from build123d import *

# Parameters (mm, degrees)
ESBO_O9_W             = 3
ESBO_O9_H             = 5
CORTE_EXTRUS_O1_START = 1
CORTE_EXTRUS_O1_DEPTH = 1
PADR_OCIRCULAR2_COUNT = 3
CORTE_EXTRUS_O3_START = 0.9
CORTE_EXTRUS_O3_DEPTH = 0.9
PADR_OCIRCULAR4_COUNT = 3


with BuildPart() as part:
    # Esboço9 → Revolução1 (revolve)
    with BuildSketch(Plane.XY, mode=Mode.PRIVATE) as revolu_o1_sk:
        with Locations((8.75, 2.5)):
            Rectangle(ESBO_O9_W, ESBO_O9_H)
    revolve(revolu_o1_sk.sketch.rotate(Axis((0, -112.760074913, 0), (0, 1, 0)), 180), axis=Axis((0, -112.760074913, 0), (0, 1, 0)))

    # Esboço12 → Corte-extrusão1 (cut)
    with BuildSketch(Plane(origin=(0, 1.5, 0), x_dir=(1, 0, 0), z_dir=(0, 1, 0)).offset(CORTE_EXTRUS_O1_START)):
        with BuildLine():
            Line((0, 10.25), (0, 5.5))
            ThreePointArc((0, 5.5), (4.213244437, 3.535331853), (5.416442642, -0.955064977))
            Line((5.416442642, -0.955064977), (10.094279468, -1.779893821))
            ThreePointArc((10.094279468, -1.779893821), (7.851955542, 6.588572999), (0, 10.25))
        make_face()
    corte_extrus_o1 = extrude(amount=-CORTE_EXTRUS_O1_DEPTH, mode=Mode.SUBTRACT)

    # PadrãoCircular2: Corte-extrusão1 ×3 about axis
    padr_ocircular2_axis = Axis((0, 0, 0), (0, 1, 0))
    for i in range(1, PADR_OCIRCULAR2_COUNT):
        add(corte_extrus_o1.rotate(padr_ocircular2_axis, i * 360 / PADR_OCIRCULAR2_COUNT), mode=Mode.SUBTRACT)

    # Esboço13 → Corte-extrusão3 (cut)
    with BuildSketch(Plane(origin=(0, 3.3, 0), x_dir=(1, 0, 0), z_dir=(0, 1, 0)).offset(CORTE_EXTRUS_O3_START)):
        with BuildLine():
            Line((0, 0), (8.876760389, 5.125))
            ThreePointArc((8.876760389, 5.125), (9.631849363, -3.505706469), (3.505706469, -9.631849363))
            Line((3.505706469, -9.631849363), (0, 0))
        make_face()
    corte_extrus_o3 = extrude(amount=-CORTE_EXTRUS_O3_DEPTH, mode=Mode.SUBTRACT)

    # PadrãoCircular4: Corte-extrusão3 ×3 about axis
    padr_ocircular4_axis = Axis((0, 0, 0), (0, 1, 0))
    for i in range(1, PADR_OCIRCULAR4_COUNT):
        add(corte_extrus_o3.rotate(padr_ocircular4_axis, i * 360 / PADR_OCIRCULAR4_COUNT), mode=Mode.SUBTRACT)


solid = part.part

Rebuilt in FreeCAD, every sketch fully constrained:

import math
import FreeCAD as App
import Part
import Sketcher
Q = App.Units.Quantity


def add_polygon(sketch, points):
    """Adds a closed chain of lines whose ends are joined by coincident constraints."""
    first, n = sketch.GeometryCount, len(points)
    for a, b in zip(points, points[1:] + points[:1]):
        sketch.addGeometry(Part.LineSegment(App.Vector(*a, 0), App.Vector(*b, 0)), False)
    for i in range(n):
        sketch.addConstraint(Sketcher.Constraint("Coincident", first + i, 2, first + (i + 1) % n, 1))

doc = App.newDocument("Part")
body = doc.addObject("PartDesign::Body", "Body")

# Sketch on XY plane
sketch1 = body.newObject("Sketcher::SketchObject", "Sketch")
sketch1.AttachmentSupport = (doc.getObject("XY_Plane"), [""])
sketch1.MapMode = "FlatFace"
add_polygon(sketch1, [(7.2, 5), (7.2, 0), (10.2, 0), (10.2, 5)])  # lines 0-3
sketch1.addConstraint(Sketcher.Constraint("Vertical", 0))
sketch1.addConstraint(Sketcher.Constraint("Horizontal", 1))
sketch1.addConstraint(Sketcher.Constraint("Vertical", 2))
sketch1.addConstraint(Sketcher.Constraint("Horizontal", 3))
sketch1.addConstraint(Sketcher.Constraint("PointOnObject", 0, 2, -1))
sketch1.addConstraint(Sketcher.Constraint("DistanceX", 1, 1, 1, 2, Q("3 mm")))
sketch1.addConstraint(Sketcher.Constraint("DistanceY", 0, 2, 0, 1, Q("5 mm")))
sketch1.addConstraint(Sketcher.Constraint("DistanceX", -1, 1, 0, 2, Q("7.25 mm")))
revolution = body.newObject("PartDesign::Revolution", "Revolution")
revolution.Profile = sketch1
revolution.ReferenceAxis = (sketch1, ["V_Axis"])
revolution.Angle = 360

# Sketch on XZ plane
sketch2 = body.newObject("Sketcher::SketchObject", "Sketch001")
sketch2.AttachmentSupport = (doc.getObject("XZ_Plane"), [""])
sketch2.MapMode = "FlatFace"
sketch2.AttachmentOffset = App.Placement(App.Vector(0, 0, -2.5), App.Rotation())
sketch2.addGeometry(Part.LineSegment(App.Vector(0, -10.2, 0), App.Vector(0, -5.5, 0)), False)
sketch2.addGeometry(Part.ArcOfCircle(Part.Circle(App.Vector(0, 0, 0), App.Vector(0, 0, 1), 5.5), math.radians(-90), math.radians(10)), False)
sketch2.addGeometry(Part.LineSegment(App.Vector(5.4, 1, 0), App.Vector(10.1, 1.8, 0)), False)
sketch2.addGeometry(Part.ArcOfCircle(Part.Circle(App.Vector(0, 0, 0), App.Vector(0, 0, 1), 10.2), math.radians(-90), math.radians(10)), False)
sketch2.addConstraint(Sketcher.Constraint("Coincident", 0, 2, 1, 1))
sketch2.addConstraint(Sketcher.Constraint("Coincident", 1, 2, 2, 1))
sketch2.addConstraint(Sketcher.Constraint("Coincident", 2, 2, 3, 2))
sketch2.addConstraint(Sketcher.Constraint("Coincident", 3, 1, 0, 1))
sketch2.addConstraint(Sketcher.Constraint("Vertical", 0))
sketch2.addConstraint(Sketcher.Constraint("Coincident", 1, 3, -1, 1))
sketch2.addConstraint(Sketcher.Constraint("Coincident", 3, 3, -1, 1))
sketch2.addConstraint(Sketcher.Constraint("PointOnObject", 0, 2, -2))
sketch2.addConstraint(Sketcher.Constraint("Radius", 1, Q("5.5 mm")))
sketch2.addConstraint(Sketcher.Constraint("Angle", 2, Q("10 deg")))
sketch2.addConstraint(Sketcher.Constraint("Radius", 3, Q("10.25 mm")))
sketch2.addConstraint(Sketcher.Constraint("DistanceX", -1, 1, 2, 2, Q("10.094279 mm")))
pocket1 = body.newObject("PartDesign::Pocket", "Pocket")
pocket1.Profile = sketch2
pocket1.Length = 1
pocket1.Reversed = True
doc.recompute()

polarpattern = body.newObject("PartDesign::PolarPattern", "PolarPattern")
polarpattern.Originals = [pocket1]
polarpattern.Axis = (doc.getObject("Y_Axis"), [""])
polarpattern.Angle = 360
polarpattern.Occurrences = 3
body.Tip = polarpattern

# Sketch on XZ plane
sketch3 = body.newObject("Sketcher::SketchObject", "Sketch002")
sketch3.AttachmentSupport = (doc.getObject("XZ_Plane"), [""])
sketch3.MapMode = "FlatFace"
sketch3.AttachmentOffset = App.Placement(App.Vector(0, 0, -4.2), App.Rotation())
sketch3.addGeometry(Part.LineSegment(App.Vector(9, -5, 0), App.Vector(0, 0, 0)), False)
sketch3.addGeometry(Part.LineSegment(App.Vector(0, 0, 0), App.Vector(4, 10, 0)), False)
sketch3.addGeometry(Part.ArcOfCircle(Part.Circle(App.Vector(0, 0, 0), App.Vector(0, 0, 1), 10), math.radians(-30), math.radians(70)), False)
sketch3.addConstraint(Sketcher.Constraint("Coincident", 0, 2, 1, 1))
sketch3.addConstraint(Sketcher.Constraint("Coincident", 1, 2, 2, 2))
sketch3.addConstraint(Sketcher.Constraint("Coincident", 2, 1, 0, 1))
sketch3.addConstraint(Sketcher.Constraint("Coincident", 2, 3, -1, 1))
sketch3.addConstraint(Sketcher.Constraint("Coincident", 0, 2, -1, 1))
sketch3.addConstraint(Sketcher.Constraint("Angle", 0, Q("150 deg")))
sketch3.addConstraint(Sketcher.Constraint("Angle", 1, Q("70 deg")))
sketch3.addConstraint(Sketcher.Constraint("Radius", 2, Q("10.25 mm")))
pocket2 = body.newObject("PartDesign::Pocket", "Pocket001")
pocket2.Profile = sketch3
pocket2.Length = 0.9
pocket2.Reversed = True
doc.recompute()

polarpattern2 = body.newObject("PartDesign::PolarPattern", "PolarPattern001")
polarpattern2.Originals = [pocket2]
polarpattern2.Axis = (doc.getObject("Y_Axis"), [""])
polarpattern2.Angle = 360
polarpattern2.Occurrences = 3
body.Tip = polarpattern2

doc.recompute()
